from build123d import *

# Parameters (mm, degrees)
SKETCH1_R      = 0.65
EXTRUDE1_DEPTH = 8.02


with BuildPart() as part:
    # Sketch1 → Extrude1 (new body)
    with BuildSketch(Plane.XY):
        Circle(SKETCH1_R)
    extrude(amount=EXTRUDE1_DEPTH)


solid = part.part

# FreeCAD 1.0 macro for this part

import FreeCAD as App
import Part
import Sketcher
Q = App.Units.Quantity

doc = App.newDocument("Part")
params = doc.addObject("Spreadsheet::Sheet", "Params")
for row, (alias, value) in enumerate([
    ("sketch1_diameter", "1.3 mm"),
    ("pad1_length", "8.02 mm"),
], start=1):
    params.set(f"A{row}", alias)
    params.set(f"B{row}", "=" + value)
    params.setAlias(f"B{row}", alias)

body = doc.addObject("PartDesign::Body", "Body")

sketch1 = body.newObject("Sketcher::SketchObject", "Sketch")
sketch1.AttachmentSupport = (doc.getObject("XY_Plane"), [""])
sketch1.MapMode = "FlatFace"
sketch1.addGeometry(Part.Circle(App.Vector(0, 0, 0), App.Vector(0, 0, 1), 0.7), False)
sketch1.addConstraint([
    Sketcher.Constraint("Coincident", 0, 3, -1, 1),
    Sketcher.Constraint("Diameter", 0, Q("1.3 mm")),
])
sketch1.setExpression("Constraints[1]", "Params.sketch1_diameter")
pad1 = body.newObject("PartDesign::Pad", "Pad")
pad1.Profile = sketch1
pad1.setExpression("Length", "Params.pad1_length")

doc.recompute()
